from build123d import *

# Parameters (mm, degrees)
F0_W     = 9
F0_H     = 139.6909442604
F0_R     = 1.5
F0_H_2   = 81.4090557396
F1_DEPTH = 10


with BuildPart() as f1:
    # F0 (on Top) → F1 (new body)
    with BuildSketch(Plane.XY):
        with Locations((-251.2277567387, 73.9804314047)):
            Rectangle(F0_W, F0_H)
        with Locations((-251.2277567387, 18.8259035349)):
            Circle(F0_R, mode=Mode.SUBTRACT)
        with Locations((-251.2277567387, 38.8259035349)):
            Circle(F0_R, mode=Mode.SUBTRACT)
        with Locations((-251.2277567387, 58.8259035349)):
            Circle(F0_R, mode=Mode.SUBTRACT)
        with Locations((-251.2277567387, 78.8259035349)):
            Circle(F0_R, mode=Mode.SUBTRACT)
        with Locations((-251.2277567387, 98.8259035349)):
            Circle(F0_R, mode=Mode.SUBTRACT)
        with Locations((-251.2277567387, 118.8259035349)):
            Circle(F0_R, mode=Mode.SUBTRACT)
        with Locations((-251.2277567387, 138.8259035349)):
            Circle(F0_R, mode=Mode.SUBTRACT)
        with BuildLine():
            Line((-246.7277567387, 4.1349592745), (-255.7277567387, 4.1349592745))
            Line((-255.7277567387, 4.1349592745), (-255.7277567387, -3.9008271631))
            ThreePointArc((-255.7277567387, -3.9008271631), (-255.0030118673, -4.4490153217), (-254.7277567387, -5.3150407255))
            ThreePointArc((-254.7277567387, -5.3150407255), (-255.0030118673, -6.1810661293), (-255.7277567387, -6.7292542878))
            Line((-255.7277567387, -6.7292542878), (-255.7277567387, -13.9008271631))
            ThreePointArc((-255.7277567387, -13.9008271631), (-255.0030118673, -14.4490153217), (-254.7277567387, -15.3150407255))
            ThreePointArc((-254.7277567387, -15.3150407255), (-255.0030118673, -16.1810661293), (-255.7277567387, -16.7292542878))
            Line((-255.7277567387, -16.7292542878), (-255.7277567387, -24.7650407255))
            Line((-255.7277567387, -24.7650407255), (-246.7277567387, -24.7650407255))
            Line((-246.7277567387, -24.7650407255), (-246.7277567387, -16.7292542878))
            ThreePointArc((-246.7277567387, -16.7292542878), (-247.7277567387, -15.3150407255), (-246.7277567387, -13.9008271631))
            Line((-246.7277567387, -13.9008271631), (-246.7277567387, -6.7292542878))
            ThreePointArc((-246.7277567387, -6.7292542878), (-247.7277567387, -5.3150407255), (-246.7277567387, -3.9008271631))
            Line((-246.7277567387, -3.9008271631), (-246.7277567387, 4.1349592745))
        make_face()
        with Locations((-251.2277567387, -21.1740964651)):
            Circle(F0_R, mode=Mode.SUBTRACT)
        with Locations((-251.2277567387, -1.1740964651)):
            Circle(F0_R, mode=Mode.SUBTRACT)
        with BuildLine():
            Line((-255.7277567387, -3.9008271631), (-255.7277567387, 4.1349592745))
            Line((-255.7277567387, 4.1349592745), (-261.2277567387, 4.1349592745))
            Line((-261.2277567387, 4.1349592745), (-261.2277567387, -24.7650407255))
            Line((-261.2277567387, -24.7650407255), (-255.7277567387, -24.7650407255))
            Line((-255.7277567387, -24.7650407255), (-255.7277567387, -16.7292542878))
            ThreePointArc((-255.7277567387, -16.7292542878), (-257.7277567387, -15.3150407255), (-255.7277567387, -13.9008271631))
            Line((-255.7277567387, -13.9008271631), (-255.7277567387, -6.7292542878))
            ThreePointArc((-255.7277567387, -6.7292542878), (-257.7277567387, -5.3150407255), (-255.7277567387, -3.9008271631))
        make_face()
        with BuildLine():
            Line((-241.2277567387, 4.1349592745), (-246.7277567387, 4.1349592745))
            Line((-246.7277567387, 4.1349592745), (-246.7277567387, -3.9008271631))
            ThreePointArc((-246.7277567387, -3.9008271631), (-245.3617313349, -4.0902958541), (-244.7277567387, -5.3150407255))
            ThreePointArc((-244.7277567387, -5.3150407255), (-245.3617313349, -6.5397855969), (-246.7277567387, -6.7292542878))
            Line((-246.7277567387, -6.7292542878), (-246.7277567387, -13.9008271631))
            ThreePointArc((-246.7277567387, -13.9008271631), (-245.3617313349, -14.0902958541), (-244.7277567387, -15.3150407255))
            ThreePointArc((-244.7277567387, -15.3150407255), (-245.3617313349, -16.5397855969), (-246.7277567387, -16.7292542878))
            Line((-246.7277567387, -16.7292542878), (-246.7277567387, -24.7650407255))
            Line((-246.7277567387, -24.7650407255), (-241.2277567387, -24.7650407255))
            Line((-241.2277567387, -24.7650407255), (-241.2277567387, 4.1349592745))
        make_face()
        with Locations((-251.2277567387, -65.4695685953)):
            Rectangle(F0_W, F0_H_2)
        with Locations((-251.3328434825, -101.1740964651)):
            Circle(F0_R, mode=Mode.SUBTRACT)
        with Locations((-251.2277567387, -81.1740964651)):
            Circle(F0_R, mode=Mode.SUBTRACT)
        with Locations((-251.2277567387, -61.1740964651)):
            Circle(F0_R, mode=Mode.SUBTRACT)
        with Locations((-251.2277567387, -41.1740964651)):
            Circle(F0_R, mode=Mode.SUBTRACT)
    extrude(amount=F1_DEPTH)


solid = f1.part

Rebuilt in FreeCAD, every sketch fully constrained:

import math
import FreeCAD as App
import Part
import Sketcher


def add_polygon(sketch, points):
    """Adds a closed chain of lines whose ends are joined by coincident constraints."""
    first, n = sketch.GeometryCount, len(points)
    for a, b in zip(points, points[1:] + points[:1]):
        sketch.addGeometry(Part.LineSegment(App.Vector(*a, 0), App.Vector(*b, 0)), False)
    for i in range(n):
        sketch.addConstraint(Sketcher.Constraint("Coincident", first + i, 2, first + (i + 1) % n, 1))

doc = App.newDocument("Part")
body = doc.addObject("PartDesign::Body", "Body")

# Sketch on XY plane
sketch1 = body.newObject("Sketcher::SketchObject", "Sketch")
sketch1.AttachmentSupport = (doc.getObject("XY_Plane"), [""])
sketch1.MapMode = "FlatFace"
add_polygon(sketch1, [(-255.727757, 143.825904), (-255.727757, 4.134959), (-261.227757, 4.134959), (-261.227757, -24.765041), (-255.727757, -24.765041), (-255.727757, -106.174096), (-246.727757, -106.174096), (-246.727757, -24.765041), (-241.227757, -24.765041), (-241.227757, 4.134959), (-246.727757, 4.134959), (-246.727757, 143.825904)])  # lines 0-11
sketch1.addGeometry(Part.Circle(App.Vector(-251.332843, -101.174096, 0), App.Vector(0, 0, 1), 1.5), False)  # 12
sketch1.addGeometry(Part.Circle(App.Vector(-251.227757, -81.174096, 0), App.Vector(0, 0, 1), 1.5), False)  # 13
sketch1.addGeometry(Part.Circle(App.Vector(-251.227757, -61.174096, 0), App.Vector(0, 0, 1), 1.5), False)  # 14
sketch1.addGeometry(Part.ArcOfCircle(Part.Circle(App.Vector(-256.227757, -15.315041, 0), App.Vector(0, 0, 1), 1.5), math.radians(0), math.radians(70.528779)), False)  # 15
sketch1.addGeometry(Part.ArcOfCircle(Part.Circle(App.Vector(-256.227757, -15.315041, 0), App.Vector(0, 0, 1), 1.5), math.radians(-70.528779), math.radians(0)), False)  # 16
sketch1.addGeometry(Part.ArcOfCircle(Part.Circle(App.Vector(-256.227757, -15.315041, 0), App.Vector(0, 0, 1), 1.5), math.radians(70.528779), math.radians(289.471221)), False)  # 17
sketch1.addGeometry(Part.ArcOfCircle(Part.Circle(App.Vector(-256.227757, -5.315041, 0), App.Vector(0, 0, 1), 1.5), math.radians(0), math.radians(70.528779)), False)  # 18
sketch1.addGeometry(Part.ArcOfCircle(Part.Circle(App.Vector(-256.227757, -5.315041, 0), App.Vector(0, 0, 1), 1.5), math.radians(-70.528779), math.radians(0)), False)  # 19
sketch1.addGeometry(Part.ArcOfCircle(Part.Circle(App.Vector(-256.227757, -5.315041, 0), App.Vector(0, 0, 1), 1.5), math.radians(70.528779), math.radians(289.471221)), False)  # 20
sketch1.addGeometry(Part.Circle(App.Vector(-251.227757, -41.174096, 0), App.Vector(0, 0, 1), 1.5), False)  # 21
sketch1.addGeometry(Part.Circle(App.Vector(-251.227757, -21.174096, 0), App.Vector(0, 0, 1), 1.5), False)  # 22
sketch1.addGeometry(Part.Circle(App.Vector(-251.227757, -1.174096, 0), App.Vector(0, 0, 1), 1.5), False)  # 23
sketch1.addGeometry(Part.ArcOfCircle(Part.Circle(App.Vector(-246.227757, -15.315041, 0), App.Vector(0, 0, 1), 1.5), math.radians(109.471221), math.radians(250.528779)), False)  # 24
sketch1.addGeometry(Part.ArcOfCircle(Part.Circle(App.Vector(-246.227757, -15.315041, 0), App.Vector(0, 0, 1), 1.5), math.radians(0), math.radians(109.471221)), False)  # 25
sketch1.addGeometry(Part.ArcOfCircle(Part.Circle(App.Vector(-246.227757, -15.315041, 0), App.Vector(0, 0, 1), 1.5), math.radians(-109.471221), math.radians(0)), False)  # 26
sketch1.addGeometry(Part.ArcOfCircle(Part.Circle(App.Vector(-246.227757, -5.315041, 0), App.Vector(0, 0, 1), 1.5), math.radians(109.471221), math.radians(250.528779)), False)  # 27
sketch1.addGeometry(Part.ArcOfCircle(Part.Circle(App.Vector(-246.227757, -5.315041, 0), App.Vector(0, 0, 1), 1.5), math.radians(0), math.radians(109.471221)), False)  # 28
sketch1.addGeometry(Part.ArcOfCircle(Part.Circle(App.Vector(-246.227757, -5.315041, 0), App.Vector(0, 0, 1), 1.5), math.radians(-109.471221), math.radians(0)), False)  # 29
sketch1.addGeometry(Part.Circle(App.Vector(-251.227757, 18.825904, 0), App.Vector(0, 0, 1), 1.5), False)  # 30
sketch1.addGeometry(Part.Circle(App.Vector(-251.227757, 38.825904, 0), App.Vector(0, 0, 1), 1.5), False)  # 31
sketch1.addGeometry(Part.Circle(App.Vector(-251.227757, 58.825904, 0), App.Vector(0, 0, 1), 1.5), False)  # 32
sketch1.addGeometry(Part.Circle(App.Vector(-251.227757, 78.825904, 0), App.Vector(0, 0, 1), 1.5), False)  # 33
sketch1.addGeometry(Part.Circle(App.Vector(-251.227757, 98.825904, 0), App.Vector(0, 0, 1), 1.5), False)  # 34
sketch1.addGeometry(Part.Circle(App.Vector(-251.227757, 118.825904, 0), App.Vector(0, 0, 1), 1.5), False)  # 35
sketch1.addGeometry(Part.Circle(App.Vector(-251.227757, 138.825904, 0), App.Vector(0, 0, 1), 1.5), False)  # 36
sketch1.addConstraint([
    Sketcher.Constraint("Tangent", 15, 1, 16, 2),
    Sketcher.Constraint("Tangent", 16, 1, 17, 2),
    Sketcher.Constraint("Tangent", 17, 1, 15, 2),
    Sketcher.Constraint("Tangent", 18, 1, 19, 2),
    Sketcher.Constraint("Tangent", 19, 1, 20, 2),
    Sketcher.Constraint("Tangent", 20, 1, 18, 2),
    Sketcher.Constraint("Tangent", 24, 1, 25, 2),
    Sketcher.Constraint("Tangent", 25, 1, 26, 2),
    Sketcher.Constraint("Tangent", 26, 1, 24, 2),
    Sketcher.Constraint("Tangent", 27, 1, 28, 2),
    Sketcher.Constraint("Tangent", 28, 1, 29, 2),
    Sketcher.Constraint("Tangent", 29, 1, 27, 2),
    Sketcher.Constraint("Vertical", 0),
    Sketcher.Constraint("Horizontal", 1),
    Sketcher.Constraint("Vertical", 2),
    Sketcher.Constraint("Horizontal", 3),
    Sketcher.Constraint("Vertical", 4),
    Sketcher.Constraint("Horizontal", 5),
    Sketcher.Constraint("Vertical", 6),
    Sketcher.Constraint("Horizontal", 7),
    Sketcher.Constraint("Vertical", 8),
    Sketcher.Constraint("Horizontal", 9),
    Sketcher.Constraint("Vertical", 10),
    Sketcher.Constraint("Horizontal", 11),
    Sketcher.Constraint("Equal", 12, 13),
    Sketcher.Constraint("Equal", 13, 14),
    Sketcher.Constraint("Equal", 14, 15),
    Sketcher.Constraint("Equal", 17, 18),
    Sketcher.Constraint("Equal", 20, 21),
    Sketcher.Constraint("Equal", 21, 22),
    Sketcher.Constraint("Equal", 22, 23),
    Sketcher.Constraint("Equal", 23, 24),
    Sketcher.Constraint("Equal", 26, 27),
    Sketcher.Constraint("Equal", 29, 30),
    Sketcher.Constraint("Equal", 30, 31),
    Sketcher.Constraint("Equal", 31, 32),
    Sketcher.Constraint("Equal", 32, 33),
    Sketcher.Constraint("Equal", 33, 34),
    Sketcher.Constraint("Equal", 34, 35),
    Sketcher.Constraint("Equal", 35, 36),
    Sketcher.Constraint("Horizontal", 17, 3, 24, 3),
    Sketcher.Constraint("Horizontal", 20, 3, 27, 3),
    Sketcher.Constraint("Horizontal", 3, 2, 6, 2),
    Sketcher.Constraint("Horizontal", 1, 2, 8, 2),
    Sketcher.Constraint("Horizontal", 26, 3, 15, 1),
    Sketcher.Constraint("Horizontal", 29, 3, 18, 1),
    Sketcher.Constraint("Horizontal", 17, 1, 24, 1),
    Sketcher.Constraint("Horizontal", 15, 1, 25, 1),
    Sketcher.Constraint("Horizontal", 16, 1, 26, 1),
    Sketcher.Constraint("Horizontal", 20, 1, 27, 1),
    Sketcher.Constraint("Horizontal", 18, 1, 28, 1),
    Sketcher.Constraint("Horizontal", 19, 1, 29, 1),
    Sketcher.Constraint("Vertical", 13, 3, 14, 3),
    Sketcher.Constraint("Vertical", 17, 3, 18, 3),
    Sketcher.Constraint("Vertical", 14, 3, 21, 3),
    Sketcher.Constraint("Vertical", 21, 3, 22, 3),
    Sketcher.Constraint("Vertical", 22, 3, 23, 3),
    Sketcher.Constraint("Vertical", 26, 3, 27, 3),
    Sketcher.Constraint("Vertical", 23, 3, 30, 3),
    Sketcher.Constraint("Vertical", 30, 3, 31, 3),
    Sketcher.Constraint("Vertical", 31, 3, 32, 3),
    Sketcher.Constraint("Vertical", 32, 3, 33, 3),
    Sketcher.Constraint("Vertical", 33, 3, 34, 3),
    Sketcher.Constraint("Vertical", 34, 3, 35, 3),
    Sketcher.Constraint("Vertical", 35, 3, 36, 3),
    Sketcher.Constraint("Vertical", 0, 2, 3, 2),
    Sketcher.Constraint("Vertical", 6, 2, 9, 2),
    Sketcher.Constraint("Vertical", 11, 2, 16, 1),
    Sketcher.Constraint("Vertical", 16, 1, 17, 1),
    Sketcher.Constraint("Vertical", 17, 1, 19, 1),
    Sketcher.Constraint("Vertical", 19, 1, 20, 1),
    Sketcher.Constraint("Vertical", 10, 2, 24, 1),
    Sketcher.Constraint("Equal", 3, 7),
    Sketcher.Constraint("Diameter", 12, 3.0),
    Sketcher.Constraint("DistanceX", 5, 1, 5, 2, 9.0),
    Sketcher.Constraint("DistanceX", 1, 2, 1, 1, 5.5),
    Sketcher.Constraint("DistanceY", 2, 2, 2, 1, 28.9),
    Sketcher.Constraint("DistanceY", 12, 3, 13, 3, 20.0),
    Sketcher.Constraint("DistanceY", 13, 3, 14, 3, 20.0),
    Sketcher.Constraint("DistanceX", 15, 3, 14, 3, 5.0),
    Sketcher.Constraint("DistanceY", 15, 3, 18, 3, 10.0),
    Sketcher.Constraint("DistanceY", 14, 3, 21, 3, 20.0),
    Sketcher.Constraint("DistanceX", 22, 3, 24, 3, 5.0),
    Sketcher.Constraint("DistanceY", 23, 3, 30, 3, 20.0),
    Sketcher.Constraint("DistanceY", 30, 3, 31, 3, 20.0),
    Sketcher.Constraint("DistanceY", 31, 3, 32, 3, 20.0),
    Sketcher.Constraint("DistanceY", 32, 3, 33, 3, 20.0),
    Sketcher.Constraint("DistanceY", 33, 3, 34, 3, 20.0),
    Sketcher.Constraint("DistanceY", 34, 3, 35, 3, 20.0),
    Sketcher.Constraint("DistanceY", 35, 3, 36, 3, 20.0),
    Sketcher.Constraint("DistanceY", 4, 2, 12, 3, 5.0),
    Sketcher.Constraint("DistanceY", 36, 3, 10, 2, 5.0),
    Sketcher.Constraint("DistanceY", 18, 3, 0, 2, 9.45),
    Sketcher.Constraint("DistanceY", 0, 2, 0, 1, 139.690944),
    Sketcher.Constraint("DistanceY", 4, 2, 4, 1, 81.409056),
    Sketcher.Constraint("DistanceY", 15, 3, -1, 1, 15.315041),
    Sketcher.Constraint("DistanceY", 22, 3, 24, 1, 7.273269),
    Sketcher.Constraint("DistanceX", 12, 3, -1, 1, 251.332843),
    Sketcher.Constraint("DistanceX", 13, 3, -1, 1, 251.227757),
])
pad1 = body.newObject("PartDesign::Pad", "Pad")
pad1.Profile = sketch1
pad1.Length = 10

doc.recompute()
